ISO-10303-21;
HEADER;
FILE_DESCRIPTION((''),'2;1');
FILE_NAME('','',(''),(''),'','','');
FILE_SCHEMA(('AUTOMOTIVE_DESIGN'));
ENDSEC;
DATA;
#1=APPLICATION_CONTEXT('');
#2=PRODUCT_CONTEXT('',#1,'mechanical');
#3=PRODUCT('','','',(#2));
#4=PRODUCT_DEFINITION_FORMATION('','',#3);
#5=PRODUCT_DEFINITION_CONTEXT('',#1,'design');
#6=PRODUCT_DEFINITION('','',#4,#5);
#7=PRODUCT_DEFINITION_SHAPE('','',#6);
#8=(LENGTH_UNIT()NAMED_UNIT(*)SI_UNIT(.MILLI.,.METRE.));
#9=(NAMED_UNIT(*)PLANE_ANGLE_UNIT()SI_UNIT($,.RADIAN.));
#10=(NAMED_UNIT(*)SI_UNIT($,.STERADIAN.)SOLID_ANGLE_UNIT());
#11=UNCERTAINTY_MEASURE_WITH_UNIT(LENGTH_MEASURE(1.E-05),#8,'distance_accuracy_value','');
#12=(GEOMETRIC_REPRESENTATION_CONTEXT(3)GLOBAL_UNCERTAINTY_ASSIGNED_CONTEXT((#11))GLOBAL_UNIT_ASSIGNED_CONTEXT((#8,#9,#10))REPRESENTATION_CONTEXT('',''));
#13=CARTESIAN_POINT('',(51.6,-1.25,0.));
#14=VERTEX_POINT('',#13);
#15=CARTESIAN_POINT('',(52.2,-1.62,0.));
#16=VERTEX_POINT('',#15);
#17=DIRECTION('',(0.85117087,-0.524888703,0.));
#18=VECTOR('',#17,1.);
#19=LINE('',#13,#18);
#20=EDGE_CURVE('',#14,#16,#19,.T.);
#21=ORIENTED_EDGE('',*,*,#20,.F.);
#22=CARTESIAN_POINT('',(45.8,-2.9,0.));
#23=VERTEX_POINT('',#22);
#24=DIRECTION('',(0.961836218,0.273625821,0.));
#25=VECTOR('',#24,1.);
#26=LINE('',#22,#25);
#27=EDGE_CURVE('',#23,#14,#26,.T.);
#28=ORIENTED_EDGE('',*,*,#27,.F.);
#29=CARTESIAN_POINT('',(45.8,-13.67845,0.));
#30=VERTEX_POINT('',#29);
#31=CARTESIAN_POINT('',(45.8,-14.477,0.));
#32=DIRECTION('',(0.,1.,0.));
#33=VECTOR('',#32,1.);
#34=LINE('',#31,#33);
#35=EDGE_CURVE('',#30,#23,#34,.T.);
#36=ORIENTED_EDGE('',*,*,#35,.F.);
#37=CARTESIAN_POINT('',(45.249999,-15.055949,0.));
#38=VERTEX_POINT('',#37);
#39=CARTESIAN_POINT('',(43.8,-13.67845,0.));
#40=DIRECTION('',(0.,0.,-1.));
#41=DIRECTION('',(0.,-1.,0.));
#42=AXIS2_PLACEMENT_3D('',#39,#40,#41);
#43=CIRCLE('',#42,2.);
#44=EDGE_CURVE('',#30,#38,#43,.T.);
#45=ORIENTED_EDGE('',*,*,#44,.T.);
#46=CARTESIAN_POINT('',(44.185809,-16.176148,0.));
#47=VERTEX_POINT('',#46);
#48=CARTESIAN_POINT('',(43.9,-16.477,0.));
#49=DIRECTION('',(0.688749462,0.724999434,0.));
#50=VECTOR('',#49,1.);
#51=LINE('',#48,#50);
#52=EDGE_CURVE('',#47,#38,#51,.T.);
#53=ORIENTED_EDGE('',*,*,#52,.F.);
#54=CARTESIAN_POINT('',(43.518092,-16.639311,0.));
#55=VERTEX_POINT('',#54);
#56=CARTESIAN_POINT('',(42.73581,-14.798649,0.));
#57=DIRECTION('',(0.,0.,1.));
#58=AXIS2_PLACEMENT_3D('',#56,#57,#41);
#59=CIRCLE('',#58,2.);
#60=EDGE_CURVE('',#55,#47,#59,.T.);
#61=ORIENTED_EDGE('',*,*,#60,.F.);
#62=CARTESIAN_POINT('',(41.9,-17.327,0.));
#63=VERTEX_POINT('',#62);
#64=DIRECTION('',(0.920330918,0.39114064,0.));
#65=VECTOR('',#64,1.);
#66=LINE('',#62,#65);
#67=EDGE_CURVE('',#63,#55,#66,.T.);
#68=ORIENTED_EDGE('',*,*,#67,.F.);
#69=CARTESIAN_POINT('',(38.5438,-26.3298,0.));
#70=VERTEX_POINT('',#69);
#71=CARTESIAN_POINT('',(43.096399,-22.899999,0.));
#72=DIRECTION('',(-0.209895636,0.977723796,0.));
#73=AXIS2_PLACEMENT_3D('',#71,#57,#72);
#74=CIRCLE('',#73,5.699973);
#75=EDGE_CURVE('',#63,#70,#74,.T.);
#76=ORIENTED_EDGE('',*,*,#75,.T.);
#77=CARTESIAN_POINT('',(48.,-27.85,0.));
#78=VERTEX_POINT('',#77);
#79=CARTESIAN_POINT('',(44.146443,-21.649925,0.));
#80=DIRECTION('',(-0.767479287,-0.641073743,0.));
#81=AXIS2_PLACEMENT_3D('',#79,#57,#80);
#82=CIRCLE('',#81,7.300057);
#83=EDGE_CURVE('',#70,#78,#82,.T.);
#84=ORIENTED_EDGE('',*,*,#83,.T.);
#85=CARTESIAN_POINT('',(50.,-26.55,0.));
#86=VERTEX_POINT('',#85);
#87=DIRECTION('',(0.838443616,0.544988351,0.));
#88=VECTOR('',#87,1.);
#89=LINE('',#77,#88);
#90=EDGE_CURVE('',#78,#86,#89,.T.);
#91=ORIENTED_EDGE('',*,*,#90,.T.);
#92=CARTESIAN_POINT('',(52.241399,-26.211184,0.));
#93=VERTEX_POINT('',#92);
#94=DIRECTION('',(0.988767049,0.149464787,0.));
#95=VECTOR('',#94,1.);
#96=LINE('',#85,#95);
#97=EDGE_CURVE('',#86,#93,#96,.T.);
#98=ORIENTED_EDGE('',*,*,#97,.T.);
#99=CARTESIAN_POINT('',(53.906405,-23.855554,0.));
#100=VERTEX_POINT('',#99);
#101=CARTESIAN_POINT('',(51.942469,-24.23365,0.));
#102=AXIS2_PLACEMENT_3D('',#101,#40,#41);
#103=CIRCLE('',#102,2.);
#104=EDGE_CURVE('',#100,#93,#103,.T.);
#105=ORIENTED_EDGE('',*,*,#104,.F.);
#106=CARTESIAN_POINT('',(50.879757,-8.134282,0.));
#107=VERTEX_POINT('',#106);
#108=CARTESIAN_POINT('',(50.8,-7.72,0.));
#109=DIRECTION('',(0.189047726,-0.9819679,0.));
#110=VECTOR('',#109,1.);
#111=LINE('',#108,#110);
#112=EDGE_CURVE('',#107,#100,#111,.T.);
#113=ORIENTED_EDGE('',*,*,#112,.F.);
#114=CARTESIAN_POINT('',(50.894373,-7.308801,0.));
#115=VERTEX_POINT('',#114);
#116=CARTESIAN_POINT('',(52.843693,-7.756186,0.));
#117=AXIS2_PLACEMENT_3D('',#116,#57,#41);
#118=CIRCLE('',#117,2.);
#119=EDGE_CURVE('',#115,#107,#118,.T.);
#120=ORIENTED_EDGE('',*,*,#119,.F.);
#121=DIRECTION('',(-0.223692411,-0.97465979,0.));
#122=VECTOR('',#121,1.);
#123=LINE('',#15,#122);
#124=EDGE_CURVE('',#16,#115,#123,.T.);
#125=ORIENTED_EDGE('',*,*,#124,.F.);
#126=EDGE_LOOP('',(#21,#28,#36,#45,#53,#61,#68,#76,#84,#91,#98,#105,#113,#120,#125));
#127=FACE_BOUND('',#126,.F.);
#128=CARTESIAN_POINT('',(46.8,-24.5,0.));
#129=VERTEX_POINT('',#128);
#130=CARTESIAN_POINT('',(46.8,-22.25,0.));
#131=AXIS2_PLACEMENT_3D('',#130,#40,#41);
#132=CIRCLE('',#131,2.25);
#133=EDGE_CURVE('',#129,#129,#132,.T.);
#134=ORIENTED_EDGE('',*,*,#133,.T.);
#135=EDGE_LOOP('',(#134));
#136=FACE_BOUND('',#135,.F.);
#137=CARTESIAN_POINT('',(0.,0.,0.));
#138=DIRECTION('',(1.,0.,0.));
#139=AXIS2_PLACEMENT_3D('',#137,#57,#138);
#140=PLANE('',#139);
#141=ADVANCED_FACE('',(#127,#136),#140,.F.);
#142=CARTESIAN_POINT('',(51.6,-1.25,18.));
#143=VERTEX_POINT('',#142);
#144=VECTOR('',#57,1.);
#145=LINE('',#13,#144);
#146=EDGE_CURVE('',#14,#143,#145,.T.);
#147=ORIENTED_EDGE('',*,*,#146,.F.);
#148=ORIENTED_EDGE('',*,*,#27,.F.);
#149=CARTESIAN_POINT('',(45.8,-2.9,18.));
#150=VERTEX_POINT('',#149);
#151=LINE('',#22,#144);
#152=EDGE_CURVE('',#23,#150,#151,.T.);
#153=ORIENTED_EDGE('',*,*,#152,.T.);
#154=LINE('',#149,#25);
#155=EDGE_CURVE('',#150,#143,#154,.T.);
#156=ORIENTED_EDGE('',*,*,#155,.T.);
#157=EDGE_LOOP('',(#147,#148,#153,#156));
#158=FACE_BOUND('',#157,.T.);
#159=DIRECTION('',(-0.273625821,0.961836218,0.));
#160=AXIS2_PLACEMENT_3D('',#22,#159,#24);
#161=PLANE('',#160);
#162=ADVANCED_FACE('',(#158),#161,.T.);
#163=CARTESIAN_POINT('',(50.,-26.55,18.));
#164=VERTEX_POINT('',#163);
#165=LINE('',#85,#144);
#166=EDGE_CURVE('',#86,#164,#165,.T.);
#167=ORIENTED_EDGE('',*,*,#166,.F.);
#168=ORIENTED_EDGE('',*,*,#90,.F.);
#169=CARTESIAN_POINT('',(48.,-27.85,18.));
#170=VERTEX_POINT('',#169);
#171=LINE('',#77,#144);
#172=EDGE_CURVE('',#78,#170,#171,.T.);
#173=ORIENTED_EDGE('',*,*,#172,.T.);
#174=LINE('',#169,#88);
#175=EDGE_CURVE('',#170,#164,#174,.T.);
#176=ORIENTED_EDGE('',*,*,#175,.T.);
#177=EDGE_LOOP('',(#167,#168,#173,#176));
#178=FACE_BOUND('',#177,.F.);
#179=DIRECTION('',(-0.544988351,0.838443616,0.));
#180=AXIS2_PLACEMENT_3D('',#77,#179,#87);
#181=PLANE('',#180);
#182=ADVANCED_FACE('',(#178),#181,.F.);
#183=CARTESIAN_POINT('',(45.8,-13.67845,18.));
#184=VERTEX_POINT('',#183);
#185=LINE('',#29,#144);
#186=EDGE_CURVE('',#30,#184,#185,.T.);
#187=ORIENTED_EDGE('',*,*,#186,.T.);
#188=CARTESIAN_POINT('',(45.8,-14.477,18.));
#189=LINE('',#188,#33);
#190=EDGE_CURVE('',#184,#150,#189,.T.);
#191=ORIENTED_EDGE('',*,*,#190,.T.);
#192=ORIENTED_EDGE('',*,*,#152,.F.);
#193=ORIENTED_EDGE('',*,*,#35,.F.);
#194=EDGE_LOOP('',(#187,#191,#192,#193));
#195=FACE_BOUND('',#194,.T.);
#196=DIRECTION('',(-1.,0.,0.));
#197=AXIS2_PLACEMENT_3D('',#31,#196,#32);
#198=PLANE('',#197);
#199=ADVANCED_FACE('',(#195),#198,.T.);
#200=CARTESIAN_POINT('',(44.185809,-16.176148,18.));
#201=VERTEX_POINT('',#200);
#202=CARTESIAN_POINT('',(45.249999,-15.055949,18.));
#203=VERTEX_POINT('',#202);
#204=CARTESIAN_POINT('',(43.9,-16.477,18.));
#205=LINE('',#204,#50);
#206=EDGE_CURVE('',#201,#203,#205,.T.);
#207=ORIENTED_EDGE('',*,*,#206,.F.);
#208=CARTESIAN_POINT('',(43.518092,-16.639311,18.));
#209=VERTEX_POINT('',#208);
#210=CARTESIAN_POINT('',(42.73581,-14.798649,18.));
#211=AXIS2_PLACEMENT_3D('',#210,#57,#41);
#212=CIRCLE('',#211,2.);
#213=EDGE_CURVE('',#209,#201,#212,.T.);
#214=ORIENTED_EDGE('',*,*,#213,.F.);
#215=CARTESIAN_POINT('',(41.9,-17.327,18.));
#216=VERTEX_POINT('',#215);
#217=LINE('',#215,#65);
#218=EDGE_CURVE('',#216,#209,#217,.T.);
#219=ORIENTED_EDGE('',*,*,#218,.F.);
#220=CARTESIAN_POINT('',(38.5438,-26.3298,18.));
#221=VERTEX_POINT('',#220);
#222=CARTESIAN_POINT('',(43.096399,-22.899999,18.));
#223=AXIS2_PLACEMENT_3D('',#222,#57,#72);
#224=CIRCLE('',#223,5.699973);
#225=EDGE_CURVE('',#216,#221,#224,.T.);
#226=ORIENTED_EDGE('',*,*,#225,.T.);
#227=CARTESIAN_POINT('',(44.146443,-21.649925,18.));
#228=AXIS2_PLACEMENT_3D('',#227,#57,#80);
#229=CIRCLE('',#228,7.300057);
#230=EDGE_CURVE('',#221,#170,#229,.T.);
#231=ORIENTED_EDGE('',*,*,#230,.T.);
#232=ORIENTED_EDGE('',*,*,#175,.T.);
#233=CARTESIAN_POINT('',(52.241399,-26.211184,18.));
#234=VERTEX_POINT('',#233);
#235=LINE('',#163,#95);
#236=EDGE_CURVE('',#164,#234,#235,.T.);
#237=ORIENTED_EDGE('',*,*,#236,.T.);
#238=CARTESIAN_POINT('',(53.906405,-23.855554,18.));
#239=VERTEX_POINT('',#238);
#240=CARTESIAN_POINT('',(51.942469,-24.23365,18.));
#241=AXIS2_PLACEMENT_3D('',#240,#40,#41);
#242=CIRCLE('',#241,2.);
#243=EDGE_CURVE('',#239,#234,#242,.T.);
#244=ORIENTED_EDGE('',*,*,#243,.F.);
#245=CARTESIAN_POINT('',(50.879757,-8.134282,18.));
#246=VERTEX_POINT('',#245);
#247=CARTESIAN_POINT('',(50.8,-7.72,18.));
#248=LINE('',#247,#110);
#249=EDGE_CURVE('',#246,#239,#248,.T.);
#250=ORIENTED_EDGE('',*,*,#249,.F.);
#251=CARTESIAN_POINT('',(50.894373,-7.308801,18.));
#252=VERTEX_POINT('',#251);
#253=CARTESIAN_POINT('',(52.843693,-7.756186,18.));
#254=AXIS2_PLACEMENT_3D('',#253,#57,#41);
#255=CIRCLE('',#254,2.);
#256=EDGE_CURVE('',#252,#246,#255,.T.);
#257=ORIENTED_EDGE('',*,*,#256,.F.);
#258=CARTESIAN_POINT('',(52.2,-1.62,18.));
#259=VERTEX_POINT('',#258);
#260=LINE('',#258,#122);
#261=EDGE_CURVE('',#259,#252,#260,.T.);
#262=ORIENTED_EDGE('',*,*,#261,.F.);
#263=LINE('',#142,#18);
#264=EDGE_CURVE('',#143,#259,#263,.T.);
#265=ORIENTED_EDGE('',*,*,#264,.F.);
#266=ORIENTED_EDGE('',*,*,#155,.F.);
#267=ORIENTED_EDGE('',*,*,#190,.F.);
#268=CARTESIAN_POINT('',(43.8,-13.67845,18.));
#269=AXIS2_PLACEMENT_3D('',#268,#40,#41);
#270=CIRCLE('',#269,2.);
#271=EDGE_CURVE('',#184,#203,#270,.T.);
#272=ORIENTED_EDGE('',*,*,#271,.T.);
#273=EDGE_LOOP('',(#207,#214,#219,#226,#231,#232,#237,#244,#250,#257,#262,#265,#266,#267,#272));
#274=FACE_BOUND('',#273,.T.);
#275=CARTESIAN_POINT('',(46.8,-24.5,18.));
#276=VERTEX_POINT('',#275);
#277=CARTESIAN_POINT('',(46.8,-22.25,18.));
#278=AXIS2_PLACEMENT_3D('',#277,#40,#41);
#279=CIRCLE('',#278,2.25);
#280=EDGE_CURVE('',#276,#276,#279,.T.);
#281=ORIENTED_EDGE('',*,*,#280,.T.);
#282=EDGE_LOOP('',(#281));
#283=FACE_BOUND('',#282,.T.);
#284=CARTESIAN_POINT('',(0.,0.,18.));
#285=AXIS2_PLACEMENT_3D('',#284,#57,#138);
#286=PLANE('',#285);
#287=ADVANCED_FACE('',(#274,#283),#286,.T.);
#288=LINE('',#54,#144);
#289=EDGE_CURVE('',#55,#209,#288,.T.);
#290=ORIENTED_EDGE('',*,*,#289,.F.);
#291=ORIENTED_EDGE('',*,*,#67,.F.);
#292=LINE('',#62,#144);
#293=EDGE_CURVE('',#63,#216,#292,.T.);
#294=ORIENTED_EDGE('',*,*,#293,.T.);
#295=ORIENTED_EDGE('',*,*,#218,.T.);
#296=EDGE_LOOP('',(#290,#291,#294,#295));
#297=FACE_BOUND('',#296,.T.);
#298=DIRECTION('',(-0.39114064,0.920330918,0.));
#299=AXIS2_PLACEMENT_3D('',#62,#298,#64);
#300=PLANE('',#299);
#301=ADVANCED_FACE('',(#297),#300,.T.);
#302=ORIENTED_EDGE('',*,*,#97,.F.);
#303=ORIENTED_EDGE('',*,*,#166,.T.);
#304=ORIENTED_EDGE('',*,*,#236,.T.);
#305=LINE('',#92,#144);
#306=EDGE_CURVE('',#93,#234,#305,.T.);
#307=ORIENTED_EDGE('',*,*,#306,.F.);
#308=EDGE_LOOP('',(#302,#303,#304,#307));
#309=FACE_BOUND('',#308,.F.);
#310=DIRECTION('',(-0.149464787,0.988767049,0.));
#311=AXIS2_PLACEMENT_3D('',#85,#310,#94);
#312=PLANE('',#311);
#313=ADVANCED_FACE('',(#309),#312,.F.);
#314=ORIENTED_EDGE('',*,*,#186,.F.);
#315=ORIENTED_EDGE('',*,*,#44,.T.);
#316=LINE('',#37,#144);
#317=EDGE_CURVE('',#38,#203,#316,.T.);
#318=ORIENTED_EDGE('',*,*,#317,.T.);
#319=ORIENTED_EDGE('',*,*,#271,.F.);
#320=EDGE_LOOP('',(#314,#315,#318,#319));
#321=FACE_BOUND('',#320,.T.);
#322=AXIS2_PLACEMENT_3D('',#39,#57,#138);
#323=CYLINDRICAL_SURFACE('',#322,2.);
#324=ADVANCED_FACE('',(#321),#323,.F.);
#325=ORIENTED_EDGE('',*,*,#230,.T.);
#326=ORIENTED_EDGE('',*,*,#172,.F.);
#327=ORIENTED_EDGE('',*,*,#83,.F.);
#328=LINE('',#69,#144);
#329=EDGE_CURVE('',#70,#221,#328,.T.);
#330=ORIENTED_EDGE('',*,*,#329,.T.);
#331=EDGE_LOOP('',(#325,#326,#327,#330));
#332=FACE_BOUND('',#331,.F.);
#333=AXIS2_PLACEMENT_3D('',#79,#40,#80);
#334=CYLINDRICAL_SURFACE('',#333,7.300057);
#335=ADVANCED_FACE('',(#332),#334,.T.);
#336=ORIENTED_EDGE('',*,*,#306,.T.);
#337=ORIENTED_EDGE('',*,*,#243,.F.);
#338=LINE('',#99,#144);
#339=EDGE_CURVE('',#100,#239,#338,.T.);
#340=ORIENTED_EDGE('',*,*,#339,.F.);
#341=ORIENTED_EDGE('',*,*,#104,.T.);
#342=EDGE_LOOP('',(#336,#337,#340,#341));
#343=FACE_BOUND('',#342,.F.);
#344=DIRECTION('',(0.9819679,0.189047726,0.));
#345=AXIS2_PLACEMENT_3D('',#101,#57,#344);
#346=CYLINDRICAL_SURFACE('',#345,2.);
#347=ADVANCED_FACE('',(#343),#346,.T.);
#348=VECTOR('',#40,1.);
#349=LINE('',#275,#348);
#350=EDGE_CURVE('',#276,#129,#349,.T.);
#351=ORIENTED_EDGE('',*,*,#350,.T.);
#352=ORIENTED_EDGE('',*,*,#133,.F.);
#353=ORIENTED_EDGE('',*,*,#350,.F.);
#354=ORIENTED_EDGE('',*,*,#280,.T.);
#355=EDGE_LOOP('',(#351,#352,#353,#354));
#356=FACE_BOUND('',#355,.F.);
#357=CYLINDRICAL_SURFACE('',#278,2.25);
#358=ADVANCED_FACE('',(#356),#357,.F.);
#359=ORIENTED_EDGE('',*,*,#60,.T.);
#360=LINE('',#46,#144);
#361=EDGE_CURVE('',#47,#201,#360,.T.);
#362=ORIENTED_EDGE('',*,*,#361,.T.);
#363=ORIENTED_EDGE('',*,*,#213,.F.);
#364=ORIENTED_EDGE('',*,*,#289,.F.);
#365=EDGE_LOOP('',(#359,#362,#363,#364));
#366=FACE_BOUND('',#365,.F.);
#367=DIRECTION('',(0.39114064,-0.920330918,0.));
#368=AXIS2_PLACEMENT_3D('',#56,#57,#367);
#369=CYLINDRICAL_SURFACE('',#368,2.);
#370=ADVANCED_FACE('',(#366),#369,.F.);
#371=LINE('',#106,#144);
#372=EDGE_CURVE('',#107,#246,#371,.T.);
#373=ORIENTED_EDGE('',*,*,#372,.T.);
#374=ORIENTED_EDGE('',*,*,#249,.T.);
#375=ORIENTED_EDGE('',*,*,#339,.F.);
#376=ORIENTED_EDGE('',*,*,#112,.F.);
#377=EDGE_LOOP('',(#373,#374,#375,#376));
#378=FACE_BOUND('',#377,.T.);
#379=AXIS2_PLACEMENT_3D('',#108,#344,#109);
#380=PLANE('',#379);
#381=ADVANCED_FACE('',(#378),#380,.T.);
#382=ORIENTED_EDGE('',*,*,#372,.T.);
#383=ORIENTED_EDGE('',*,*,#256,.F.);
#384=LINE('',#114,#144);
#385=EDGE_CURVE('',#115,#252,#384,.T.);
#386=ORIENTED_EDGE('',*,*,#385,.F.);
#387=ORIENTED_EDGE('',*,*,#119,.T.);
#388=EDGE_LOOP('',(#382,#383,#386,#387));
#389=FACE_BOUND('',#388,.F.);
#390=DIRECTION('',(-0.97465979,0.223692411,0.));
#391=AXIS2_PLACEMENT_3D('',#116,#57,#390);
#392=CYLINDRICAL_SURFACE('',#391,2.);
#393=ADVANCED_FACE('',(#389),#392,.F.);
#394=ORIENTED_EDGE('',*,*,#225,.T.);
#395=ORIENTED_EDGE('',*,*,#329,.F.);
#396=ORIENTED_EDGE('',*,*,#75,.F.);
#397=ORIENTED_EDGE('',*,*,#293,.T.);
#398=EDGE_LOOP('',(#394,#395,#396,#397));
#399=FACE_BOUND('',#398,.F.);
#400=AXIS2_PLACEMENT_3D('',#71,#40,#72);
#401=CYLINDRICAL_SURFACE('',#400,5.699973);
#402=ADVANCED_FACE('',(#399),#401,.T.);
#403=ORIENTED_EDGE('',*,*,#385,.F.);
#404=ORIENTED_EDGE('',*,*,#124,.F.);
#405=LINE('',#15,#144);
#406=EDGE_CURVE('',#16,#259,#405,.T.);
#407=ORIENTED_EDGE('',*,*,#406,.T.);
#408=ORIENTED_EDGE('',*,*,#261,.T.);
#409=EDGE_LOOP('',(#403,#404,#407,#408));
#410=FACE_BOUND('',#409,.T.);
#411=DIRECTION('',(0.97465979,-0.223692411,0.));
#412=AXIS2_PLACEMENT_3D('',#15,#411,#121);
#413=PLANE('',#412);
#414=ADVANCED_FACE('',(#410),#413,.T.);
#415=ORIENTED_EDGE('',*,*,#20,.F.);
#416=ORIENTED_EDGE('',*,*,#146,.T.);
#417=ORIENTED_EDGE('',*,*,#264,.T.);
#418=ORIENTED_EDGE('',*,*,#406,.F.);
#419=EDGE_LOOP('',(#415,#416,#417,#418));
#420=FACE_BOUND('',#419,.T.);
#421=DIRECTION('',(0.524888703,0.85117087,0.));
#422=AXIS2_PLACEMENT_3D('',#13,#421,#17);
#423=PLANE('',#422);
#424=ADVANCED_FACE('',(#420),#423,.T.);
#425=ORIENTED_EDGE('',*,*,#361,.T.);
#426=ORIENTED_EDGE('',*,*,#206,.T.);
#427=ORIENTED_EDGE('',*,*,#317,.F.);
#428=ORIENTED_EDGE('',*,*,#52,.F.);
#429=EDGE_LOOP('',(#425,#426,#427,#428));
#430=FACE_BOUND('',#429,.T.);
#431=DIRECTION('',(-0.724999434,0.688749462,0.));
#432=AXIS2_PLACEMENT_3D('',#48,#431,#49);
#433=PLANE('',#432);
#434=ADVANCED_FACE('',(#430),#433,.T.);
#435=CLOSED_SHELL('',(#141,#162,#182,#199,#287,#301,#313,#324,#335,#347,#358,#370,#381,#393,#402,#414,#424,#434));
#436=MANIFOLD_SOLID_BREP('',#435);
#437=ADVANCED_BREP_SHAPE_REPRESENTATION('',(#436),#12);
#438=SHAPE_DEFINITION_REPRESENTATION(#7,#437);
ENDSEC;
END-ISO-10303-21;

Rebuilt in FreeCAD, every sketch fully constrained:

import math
import FreeCAD as App
import Part
import Sketcher

V = App.Vector
Q = App.Units.Quantity


def edges_at(feature, points):
    """Names of the edges that pass closest to the given points."""
    edges = feature.Shape.Edges
    near = lambda p: min(range(len(edges)), key=lambda i: edges[i].distToShape(Part.Vertex(*p))[0])
    return sorted({f"Edge{near(p) + 1}" for p in points})

doc = App.newDocument("Part")
body = doc.addObject("PartDesign::Body", "Body")

# Sketch on XY plane
sketch1 = body.newObject("Sketcher::SketchObject", "Sketch")
sketch1.AttachmentSupport = (doc.getObject("XY_Plane"), [""])
sketch1.MapMode = "FlatFace"
sketch1.addGeometry([
    Part.LineSegment(V(45.8, -2.9, 0), V(45.8, -14.5, 0)),  # 0
    Part.LineSegment(V(45.8, -14.5, 0), V(43.9, -16.5, 0)),  # 1
    Part.LineSegment(V(43.9, -16.5, 0), V(41.9, -17.3, 0)),  # 2
    Part.ArcOfCircle(Part.Circle(V(43.1, -22.9, 0), V(0, 0, 1), 5.7), math.radians(102), math.radians(217)),  # 3
    Part.ArcOfCircle(Part.Circle(V(44.1, -21.6, 0), V(0, 0, 1), 7.3), math.radians(-140), math.radians(-58)),  # 4
    Part.LineSegment(V(48, -27.9, 0), V(50, -26.6, 0)),  # 5
    Part.LineSegment(V(50, -26.6, 0), V(54.3, -25.9, 0)),  # 6
    Part.LineSegment(V(54.3, -25.9, 0), V(50.8, -7.7, 0)),  # 7
    Part.LineSegment(V(50.8, -7.7, 0), V(52.2, -1.6, 0)),  # 8
    Part.LineSegment(V(52.2, -1.6, 0), V(51.6, -1.2, 0)),  # 9
    Part.LineSegment(V(51.6, -1.2, 0), V(45.8, -2.9, 0)),  # 10
], False)
sketch1.addConstraint([
    Sketcher.Constraint("Coincident", 0, 2, 1, 1),
    Sketcher.Constraint("Coincident", 1, 2, 2, 1),
    Sketcher.Constraint("Coincident", 2, 2, 3, 1),
    Sketcher.Constraint("Coincident", 3, 2, 4, 1),
    Sketcher.Constraint("Coincident", 4, 2, 5, 1),
    Sketcher.Constraint("Coincident", 5, 2, 6, 1),
    Sketcher.Constraint("Coincident", 6, 2, 7, 1),
    Sketcher.Constraint("Coincident", 7, 2, 8, 1),
    Sketcher.Constraint("Coincident", 8, 2, 9, 1),
    Sketcher.Constraint("Coincident", 9, 2, 10, 1),
    Sketcher.Constraint("Coincident", 10, 2, 0, 1),
    Sketcher.Constraint("Vertical", 0),
    Sketcher.Constraint("Radius", 3, Q("5.7 mm")),
    Sketcher.Constraint("Radius", 4, Q("7.3 mm")),
    Sketcher.Constraint("DistanceY", 1, 2, 0, 2, Q("2 mm")),
    Sketcher.Constraint("DistanceX", 2, 2, 1, 2, Q("2 mm")),
    Sketcher.Constraint("DistanceX", 4, 2, 5, 2, Q("2 mm")),
    Sketcher.Constraint("DistanceX", -1, 1, 0, 2, Q("45.8 mm")),
    Sketcher.Constraint("DistanceY", 10, 2, -1, 1, Q("2.9 mm")),
    Sketcher.Constraint("DistanceX", 1, 2, 0, 2, Q("1.9 mm")),
    Sketcher.Constraint("DistanceX", 2, 2, 4, 2, Q("6.1 mm")),
    Sketcher.Constraint("DistanceY", 4, 2, 5, 2, Q("1.3 mm")),
    Sketcher.Constraint("DistanceX", 5, 2, 6, 2, Q("4.3 mm")),
    Sketcher.Constraint("DistanceX", 7, 2, 8, 2, Q("1.4 mm")),
    Sketcher.Constraint("DistanceY", 7, 2, 8, 2, Q("6.1 mm")),
    Sketcher.Constraint("DistanceX", 9, 2, 8, 2, Q("0.6 mm")),
    Sketcher.Constraint("DistanceX", 0, 2, 9, 2, Q("5.8 mm")),
    Sketcher.Constraint("DistanceY", 9, 2, -1, 1, Q("1.25 mm")),
    Sketcher.Constraint("DistanceX", 3, 3, 4, 3, Q("1.05 mm")),
    Sketcher.Constraint("DistanceY", 3, 3, 4, 3, Q("1.25 mm")),
    Sketcher.Constraint("DistanceY", 2, 2, 1, 2, Q("0.85 mm")),
    Sketcher.Constraint("DistanceY", 5, 2, 6, 2, Q("0.65 mm")),
    Sketcher.Constraint("DistanceY", 8, 2, 9, 2, Q("0.37 mm")),
    Sketcher.Constraint("DistanceY", 6, 2, 3, 3, Q("3 mm")),
    Sketcher.Constraint("DistanceY", 3, 3, -1, 1, Q("22.9 mm")),
])
pad1 = body.newObject("PartDesign::Pad", "Pad")
pad1.Profile = sketch1
pad1.Length = 18
doc.recompute()

fillet = body.newObject("PartDesign::Fillet", "Fillet")
fillet.Base = (pad1, edges_at(pad1, [
    (54.3, -25.9, 9),
    (45.8, -14.477, 9),
    (43.9, -16.477, 9),
    (50.8, -7.72, 9),
]))
fillet.Radius = 2

# Sketch on XY plane
sketch2 = body.newObject("Sketcher::SketchObject", "Sketch001")
sketch2.AttachmentSupport = (doc.getObject("XY_Plane"), [""])
sketch2.MapMode = "FlatFace"
sketch2.AttachmentOffset = App.Placement(V(0, 0, 18), App.Rotation())
sketch2.addGeometry(Part.Circle(V(46.8, -22.2, 0), V(0, 0, 1), 2.2), False)
sketch2.addConstraint([
    Sketcher.Constraint("Diameter", 0, Q("4.5 mm")),
    Sketcher.Constraint("DistanceX", -1, 1, 0, 3, Q("46.8 mm")),
    Sketcher.Constraint("DistanceY", 0, 3, -1, 1, Q("22.25 mm")),
])
doc.recompute()
hole = body.newObject("PartDesign::Hole", "Hole")
hole.Profile = sketch2
hole.ThreadType = "None"
hole.Diameter = 4.5
hole.DepthType = "ThroughAll"

doc.recompute()
